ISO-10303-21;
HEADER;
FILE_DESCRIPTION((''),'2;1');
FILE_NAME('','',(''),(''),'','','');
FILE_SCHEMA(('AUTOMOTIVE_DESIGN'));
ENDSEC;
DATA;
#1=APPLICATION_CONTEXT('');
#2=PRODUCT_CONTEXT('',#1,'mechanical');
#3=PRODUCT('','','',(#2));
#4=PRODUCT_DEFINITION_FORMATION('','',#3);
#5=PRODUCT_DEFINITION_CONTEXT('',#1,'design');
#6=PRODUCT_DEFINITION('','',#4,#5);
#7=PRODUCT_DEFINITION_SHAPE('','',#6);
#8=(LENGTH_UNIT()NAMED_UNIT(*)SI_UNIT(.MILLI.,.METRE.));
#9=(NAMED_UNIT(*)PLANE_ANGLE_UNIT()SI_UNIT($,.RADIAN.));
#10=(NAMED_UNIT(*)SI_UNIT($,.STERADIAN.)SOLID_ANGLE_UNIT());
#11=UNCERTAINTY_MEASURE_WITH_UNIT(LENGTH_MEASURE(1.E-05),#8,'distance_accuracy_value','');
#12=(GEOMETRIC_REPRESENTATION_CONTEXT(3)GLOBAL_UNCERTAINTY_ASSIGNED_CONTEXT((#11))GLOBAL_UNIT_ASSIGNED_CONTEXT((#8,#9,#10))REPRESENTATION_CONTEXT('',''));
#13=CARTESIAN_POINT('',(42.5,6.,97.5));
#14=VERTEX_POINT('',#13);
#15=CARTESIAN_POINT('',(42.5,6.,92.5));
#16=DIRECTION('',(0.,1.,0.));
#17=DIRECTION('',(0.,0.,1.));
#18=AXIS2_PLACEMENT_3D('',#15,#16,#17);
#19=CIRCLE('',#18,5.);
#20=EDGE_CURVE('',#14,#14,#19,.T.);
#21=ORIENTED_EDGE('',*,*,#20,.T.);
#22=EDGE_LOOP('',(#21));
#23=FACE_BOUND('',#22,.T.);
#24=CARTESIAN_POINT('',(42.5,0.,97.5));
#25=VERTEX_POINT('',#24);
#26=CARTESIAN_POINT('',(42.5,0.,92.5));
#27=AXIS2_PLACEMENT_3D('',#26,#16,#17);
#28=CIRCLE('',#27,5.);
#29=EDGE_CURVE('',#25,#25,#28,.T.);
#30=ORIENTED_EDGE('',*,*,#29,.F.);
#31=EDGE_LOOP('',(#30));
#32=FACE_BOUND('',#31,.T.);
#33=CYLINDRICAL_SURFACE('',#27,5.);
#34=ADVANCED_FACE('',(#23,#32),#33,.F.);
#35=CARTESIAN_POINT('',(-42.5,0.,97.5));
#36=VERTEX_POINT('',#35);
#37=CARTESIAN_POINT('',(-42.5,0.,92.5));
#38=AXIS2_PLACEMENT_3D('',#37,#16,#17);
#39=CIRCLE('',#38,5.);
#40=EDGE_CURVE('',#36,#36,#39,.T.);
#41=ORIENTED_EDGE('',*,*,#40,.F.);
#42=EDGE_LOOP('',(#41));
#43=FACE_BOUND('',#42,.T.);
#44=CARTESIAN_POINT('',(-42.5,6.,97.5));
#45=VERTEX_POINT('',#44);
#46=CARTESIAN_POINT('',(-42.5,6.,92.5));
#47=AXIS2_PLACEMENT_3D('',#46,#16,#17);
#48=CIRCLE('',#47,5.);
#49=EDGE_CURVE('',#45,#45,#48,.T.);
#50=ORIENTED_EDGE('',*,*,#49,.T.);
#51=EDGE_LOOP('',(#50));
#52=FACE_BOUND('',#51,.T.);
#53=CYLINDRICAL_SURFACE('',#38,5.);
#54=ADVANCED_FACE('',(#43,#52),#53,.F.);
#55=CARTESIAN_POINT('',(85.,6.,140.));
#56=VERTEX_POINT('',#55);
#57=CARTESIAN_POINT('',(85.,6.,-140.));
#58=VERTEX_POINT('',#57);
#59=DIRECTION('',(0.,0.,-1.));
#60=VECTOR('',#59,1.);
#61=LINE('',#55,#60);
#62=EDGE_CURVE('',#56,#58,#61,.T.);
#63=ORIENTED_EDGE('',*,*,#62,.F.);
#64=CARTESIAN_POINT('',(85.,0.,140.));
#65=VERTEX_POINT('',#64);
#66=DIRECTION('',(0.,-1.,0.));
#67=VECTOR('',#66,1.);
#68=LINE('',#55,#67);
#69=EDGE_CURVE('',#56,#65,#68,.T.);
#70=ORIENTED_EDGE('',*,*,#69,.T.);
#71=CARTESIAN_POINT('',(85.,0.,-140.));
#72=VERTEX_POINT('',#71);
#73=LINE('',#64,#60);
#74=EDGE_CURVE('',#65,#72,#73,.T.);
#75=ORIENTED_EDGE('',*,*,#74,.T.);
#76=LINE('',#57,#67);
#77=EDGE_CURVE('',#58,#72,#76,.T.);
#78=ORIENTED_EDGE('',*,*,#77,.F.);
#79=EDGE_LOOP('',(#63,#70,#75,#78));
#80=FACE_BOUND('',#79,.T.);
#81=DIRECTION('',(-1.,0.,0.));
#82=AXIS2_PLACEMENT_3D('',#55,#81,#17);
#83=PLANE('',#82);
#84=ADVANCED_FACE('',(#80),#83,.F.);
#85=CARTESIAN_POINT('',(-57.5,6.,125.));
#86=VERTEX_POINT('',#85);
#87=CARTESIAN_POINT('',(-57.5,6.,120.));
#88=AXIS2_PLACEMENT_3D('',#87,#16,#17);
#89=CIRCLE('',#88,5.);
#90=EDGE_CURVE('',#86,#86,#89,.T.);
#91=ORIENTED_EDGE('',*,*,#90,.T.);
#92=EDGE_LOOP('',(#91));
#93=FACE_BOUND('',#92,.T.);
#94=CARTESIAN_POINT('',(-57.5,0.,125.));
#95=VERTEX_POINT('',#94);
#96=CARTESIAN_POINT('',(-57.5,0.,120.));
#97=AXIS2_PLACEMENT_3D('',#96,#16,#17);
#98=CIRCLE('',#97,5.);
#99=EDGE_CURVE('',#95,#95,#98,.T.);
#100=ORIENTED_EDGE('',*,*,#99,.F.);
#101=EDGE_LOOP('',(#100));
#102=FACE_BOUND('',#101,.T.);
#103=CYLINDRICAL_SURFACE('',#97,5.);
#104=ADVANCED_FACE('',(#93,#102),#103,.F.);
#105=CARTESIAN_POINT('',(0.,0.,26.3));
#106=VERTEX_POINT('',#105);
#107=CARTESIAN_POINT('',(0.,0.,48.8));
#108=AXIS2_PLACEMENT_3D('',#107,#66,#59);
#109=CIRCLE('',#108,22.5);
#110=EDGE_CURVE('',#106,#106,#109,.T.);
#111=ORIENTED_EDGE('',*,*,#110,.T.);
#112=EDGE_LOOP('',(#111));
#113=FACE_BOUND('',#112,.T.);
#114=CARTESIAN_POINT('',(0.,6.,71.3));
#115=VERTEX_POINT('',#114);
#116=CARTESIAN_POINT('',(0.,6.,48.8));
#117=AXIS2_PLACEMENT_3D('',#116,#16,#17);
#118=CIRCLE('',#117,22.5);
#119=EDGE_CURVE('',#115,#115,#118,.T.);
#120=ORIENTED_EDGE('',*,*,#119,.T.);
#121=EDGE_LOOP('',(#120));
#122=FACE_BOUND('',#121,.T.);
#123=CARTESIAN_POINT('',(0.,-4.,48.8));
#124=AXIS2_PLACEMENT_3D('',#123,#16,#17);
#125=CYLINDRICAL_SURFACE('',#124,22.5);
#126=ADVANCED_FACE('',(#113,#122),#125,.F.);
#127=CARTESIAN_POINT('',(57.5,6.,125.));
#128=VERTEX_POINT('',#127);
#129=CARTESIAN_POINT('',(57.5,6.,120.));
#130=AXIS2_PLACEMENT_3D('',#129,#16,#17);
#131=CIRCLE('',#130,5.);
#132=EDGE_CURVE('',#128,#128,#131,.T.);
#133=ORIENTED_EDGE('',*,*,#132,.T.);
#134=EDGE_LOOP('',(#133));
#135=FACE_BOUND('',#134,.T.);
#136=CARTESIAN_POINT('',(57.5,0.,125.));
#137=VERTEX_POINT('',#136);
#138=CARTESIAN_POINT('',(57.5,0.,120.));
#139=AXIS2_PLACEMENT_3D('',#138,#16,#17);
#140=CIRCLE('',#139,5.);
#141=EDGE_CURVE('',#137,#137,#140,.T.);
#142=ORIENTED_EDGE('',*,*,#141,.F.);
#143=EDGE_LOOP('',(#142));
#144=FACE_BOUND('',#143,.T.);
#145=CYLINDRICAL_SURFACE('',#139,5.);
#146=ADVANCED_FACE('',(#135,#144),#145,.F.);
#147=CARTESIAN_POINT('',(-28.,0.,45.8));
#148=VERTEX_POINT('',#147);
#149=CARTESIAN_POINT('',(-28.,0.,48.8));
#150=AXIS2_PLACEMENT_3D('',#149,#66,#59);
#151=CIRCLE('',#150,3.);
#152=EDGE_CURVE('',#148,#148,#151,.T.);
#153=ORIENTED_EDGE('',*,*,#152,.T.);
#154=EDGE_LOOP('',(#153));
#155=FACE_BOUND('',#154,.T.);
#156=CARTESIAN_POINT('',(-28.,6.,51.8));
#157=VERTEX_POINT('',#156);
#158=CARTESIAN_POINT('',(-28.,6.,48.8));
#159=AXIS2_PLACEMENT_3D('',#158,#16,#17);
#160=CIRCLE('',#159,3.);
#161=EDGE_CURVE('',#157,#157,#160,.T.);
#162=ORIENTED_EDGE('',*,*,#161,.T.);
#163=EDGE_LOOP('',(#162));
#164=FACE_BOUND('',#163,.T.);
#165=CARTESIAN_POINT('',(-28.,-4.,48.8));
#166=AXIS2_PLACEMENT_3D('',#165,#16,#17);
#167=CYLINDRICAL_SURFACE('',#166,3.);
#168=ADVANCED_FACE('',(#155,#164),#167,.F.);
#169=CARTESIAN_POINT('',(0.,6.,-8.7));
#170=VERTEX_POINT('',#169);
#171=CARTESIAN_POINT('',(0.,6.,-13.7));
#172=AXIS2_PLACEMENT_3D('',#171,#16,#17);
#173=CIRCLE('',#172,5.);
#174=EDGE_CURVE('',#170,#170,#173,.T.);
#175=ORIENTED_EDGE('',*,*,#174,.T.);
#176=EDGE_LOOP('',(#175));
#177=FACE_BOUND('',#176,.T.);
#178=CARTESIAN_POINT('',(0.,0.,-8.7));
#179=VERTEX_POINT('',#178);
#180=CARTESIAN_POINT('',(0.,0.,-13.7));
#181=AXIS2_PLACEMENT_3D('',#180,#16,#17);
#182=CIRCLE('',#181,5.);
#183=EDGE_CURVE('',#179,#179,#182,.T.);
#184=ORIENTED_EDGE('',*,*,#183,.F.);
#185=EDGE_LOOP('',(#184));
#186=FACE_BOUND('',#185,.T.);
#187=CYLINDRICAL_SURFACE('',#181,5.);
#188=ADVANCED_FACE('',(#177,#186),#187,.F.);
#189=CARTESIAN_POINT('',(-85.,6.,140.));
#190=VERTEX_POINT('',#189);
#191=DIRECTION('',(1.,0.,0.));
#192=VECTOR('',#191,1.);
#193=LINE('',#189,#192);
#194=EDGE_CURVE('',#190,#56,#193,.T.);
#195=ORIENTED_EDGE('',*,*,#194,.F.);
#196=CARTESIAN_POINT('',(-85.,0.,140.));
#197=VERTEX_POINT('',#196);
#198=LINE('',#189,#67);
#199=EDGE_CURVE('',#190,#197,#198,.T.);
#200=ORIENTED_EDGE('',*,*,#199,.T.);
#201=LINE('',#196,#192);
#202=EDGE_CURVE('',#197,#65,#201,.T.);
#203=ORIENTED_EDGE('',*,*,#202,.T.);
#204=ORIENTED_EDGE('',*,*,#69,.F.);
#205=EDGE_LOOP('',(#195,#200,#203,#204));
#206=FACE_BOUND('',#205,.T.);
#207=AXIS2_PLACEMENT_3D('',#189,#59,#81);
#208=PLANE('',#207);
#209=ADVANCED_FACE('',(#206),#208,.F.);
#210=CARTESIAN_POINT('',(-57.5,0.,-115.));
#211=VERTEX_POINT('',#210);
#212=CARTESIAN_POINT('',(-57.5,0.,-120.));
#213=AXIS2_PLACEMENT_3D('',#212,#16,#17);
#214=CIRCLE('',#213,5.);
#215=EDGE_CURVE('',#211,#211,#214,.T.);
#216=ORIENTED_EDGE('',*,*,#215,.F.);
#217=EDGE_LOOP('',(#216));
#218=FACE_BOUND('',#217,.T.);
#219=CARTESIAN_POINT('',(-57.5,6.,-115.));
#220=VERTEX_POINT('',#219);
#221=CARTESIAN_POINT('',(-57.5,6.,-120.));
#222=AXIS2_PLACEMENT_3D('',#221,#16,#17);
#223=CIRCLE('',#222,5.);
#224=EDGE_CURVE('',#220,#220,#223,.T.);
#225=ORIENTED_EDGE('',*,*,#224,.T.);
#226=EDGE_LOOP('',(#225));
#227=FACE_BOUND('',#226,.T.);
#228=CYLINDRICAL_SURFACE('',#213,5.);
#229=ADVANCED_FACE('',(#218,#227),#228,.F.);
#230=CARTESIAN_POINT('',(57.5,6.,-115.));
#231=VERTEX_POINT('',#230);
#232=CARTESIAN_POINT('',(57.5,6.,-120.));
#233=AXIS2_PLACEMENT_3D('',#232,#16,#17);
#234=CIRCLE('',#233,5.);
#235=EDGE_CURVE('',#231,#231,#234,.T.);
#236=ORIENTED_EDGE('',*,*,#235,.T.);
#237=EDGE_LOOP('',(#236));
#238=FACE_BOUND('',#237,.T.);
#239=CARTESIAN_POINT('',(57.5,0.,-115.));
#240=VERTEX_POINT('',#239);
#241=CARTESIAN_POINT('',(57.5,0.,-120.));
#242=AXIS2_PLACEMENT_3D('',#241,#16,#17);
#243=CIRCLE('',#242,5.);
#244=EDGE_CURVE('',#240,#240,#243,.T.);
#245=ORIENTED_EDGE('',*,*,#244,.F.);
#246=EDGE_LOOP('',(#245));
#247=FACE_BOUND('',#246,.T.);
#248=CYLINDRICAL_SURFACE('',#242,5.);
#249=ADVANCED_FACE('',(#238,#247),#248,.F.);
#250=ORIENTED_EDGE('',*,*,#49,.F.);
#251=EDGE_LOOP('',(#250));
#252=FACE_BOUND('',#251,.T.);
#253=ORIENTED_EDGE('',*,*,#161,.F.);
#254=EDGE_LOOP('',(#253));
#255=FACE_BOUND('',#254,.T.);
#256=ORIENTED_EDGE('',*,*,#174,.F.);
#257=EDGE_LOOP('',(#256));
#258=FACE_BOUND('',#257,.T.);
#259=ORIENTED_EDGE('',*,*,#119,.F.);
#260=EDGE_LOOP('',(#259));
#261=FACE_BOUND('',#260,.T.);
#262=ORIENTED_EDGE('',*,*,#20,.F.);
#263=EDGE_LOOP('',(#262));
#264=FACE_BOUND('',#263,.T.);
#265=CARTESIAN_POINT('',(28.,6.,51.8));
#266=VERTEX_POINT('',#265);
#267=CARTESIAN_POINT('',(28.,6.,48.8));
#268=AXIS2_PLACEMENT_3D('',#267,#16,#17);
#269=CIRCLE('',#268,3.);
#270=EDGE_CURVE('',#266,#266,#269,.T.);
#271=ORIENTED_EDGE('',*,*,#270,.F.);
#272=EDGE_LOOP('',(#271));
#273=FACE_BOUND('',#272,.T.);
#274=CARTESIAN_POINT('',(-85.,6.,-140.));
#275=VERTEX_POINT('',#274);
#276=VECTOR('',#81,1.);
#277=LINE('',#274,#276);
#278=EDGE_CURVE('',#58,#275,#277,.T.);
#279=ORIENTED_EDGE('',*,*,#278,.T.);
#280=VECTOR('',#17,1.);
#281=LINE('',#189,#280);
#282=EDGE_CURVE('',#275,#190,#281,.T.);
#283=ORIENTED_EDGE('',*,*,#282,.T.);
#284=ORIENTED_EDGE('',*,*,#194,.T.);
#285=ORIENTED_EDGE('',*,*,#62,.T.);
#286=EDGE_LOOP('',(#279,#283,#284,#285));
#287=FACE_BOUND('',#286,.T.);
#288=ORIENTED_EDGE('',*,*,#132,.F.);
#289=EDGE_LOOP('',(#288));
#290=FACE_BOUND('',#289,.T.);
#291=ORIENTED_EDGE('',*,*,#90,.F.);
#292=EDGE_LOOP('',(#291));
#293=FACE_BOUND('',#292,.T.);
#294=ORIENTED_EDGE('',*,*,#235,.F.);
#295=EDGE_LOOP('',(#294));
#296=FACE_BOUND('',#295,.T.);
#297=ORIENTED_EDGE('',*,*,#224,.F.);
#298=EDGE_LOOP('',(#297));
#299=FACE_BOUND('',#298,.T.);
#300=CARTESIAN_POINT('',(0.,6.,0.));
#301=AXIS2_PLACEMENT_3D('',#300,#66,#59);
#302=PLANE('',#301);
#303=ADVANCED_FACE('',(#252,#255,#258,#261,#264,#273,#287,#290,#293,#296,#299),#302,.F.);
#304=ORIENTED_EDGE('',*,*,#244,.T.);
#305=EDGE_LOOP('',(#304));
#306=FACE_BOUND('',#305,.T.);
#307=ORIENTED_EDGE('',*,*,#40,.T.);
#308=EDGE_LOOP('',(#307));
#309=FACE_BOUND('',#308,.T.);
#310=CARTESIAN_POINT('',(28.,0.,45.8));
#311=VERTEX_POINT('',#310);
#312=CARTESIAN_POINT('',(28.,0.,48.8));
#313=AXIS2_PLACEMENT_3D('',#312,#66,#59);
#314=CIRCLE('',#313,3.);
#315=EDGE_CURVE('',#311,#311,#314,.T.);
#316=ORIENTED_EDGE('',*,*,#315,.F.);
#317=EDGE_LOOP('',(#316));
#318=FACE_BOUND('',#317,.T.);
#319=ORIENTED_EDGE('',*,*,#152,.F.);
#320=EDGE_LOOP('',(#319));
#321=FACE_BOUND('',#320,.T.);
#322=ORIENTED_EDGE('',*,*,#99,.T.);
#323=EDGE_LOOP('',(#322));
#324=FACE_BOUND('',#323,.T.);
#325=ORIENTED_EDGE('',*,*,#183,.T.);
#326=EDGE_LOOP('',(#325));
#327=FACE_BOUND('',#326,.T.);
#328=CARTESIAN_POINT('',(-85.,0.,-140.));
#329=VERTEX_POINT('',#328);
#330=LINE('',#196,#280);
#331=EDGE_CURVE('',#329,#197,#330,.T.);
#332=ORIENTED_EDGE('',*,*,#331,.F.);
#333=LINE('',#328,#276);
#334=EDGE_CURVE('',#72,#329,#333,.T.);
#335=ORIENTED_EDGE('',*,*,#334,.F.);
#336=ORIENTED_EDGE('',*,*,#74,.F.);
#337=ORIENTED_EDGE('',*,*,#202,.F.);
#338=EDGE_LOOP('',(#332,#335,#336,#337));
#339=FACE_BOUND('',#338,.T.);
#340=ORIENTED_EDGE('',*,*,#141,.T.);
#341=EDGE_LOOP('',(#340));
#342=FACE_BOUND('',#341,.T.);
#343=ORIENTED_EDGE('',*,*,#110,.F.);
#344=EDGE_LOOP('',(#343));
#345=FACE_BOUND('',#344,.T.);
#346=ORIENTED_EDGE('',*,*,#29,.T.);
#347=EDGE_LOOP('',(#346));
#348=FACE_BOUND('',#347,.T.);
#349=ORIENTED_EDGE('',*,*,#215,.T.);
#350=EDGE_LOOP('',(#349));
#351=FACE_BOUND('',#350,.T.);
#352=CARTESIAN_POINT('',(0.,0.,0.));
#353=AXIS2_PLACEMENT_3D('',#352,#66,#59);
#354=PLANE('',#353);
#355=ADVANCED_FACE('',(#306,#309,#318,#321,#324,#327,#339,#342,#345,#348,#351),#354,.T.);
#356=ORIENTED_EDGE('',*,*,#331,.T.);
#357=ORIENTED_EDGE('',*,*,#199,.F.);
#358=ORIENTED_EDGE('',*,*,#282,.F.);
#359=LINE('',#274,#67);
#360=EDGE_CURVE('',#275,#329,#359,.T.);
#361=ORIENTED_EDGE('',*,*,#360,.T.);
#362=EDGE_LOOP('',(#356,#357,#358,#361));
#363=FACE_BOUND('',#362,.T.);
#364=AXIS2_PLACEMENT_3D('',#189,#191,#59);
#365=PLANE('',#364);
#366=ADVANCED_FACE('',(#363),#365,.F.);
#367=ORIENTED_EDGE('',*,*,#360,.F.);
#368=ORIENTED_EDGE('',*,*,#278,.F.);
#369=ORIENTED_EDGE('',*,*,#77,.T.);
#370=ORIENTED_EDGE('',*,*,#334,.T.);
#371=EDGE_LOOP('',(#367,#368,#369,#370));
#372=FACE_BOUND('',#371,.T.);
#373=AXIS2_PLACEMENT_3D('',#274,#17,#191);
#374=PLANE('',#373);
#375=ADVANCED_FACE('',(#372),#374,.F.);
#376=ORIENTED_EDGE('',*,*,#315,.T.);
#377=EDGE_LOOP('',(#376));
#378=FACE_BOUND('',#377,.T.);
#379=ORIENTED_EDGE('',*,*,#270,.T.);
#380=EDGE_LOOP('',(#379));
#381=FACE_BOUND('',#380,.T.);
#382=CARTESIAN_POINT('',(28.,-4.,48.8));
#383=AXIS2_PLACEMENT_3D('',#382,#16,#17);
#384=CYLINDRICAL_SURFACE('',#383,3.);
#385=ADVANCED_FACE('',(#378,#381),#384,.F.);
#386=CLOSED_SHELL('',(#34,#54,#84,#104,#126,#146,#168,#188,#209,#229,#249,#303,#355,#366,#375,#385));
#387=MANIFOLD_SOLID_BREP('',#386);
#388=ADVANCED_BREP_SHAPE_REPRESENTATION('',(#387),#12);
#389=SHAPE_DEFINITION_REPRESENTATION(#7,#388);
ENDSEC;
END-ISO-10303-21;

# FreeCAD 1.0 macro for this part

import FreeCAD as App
import Part
import Sketcher

V = App.Vector

doc = App.newDocument("Part")
body = doc.addObject("PartDesign::Body", "Body")

# Sketch on XZ plane
sketch1 = body.newObject("Sketcher::SketchObject", "Sketch")
sketch1.AttachmentSupport = (doc.getObject("XZ_Plane"), [""])
sketch1.MapMode = "FlatFace"
sketch1.addGeometry([
    Part.LineSegment(V(-85, -140, 0), V(-85, 140, 0)),
    Part.LineSegment(V(-85, 140, 0), V(85, 140, 0)),
    Part.LineSegment(V(85, 140, 0), V(85, -140, 0)),
    Part.LineSegment(V(85, -140, 0), V(-85, -140, 0)),
], False)
sketch1.addConstraint([
    Sketcher.Constraint("Coincident", 0, 2, 1, 1),
    Sketcher.Constraint("Coincident", 1, 2, 2, 1),
    Sketcher.Constraint("Coincident", 2, 2, 3, 1),
    Sketcher.Constraint("Coincident", 3, 2, 0, 1),
    Sketcher.Constraint("Vertical", 0),
    Sketcher.Constraint("Horizontal", 1),
    Sketcher.Constraint("Vertical", 2),
    Sketcher.Constraint("Horizontal", 3),
    Sketcher.Constraint("Symmetric", 0, 2, 2, 2, -1, 1),
    Sketcher.Constraint("DistanceX", 1, 1, 1, 2, 170.0),
    Sketcher.Constraint("DistanceY", 0, 1, 0, 2, 280.0),
])
pad1 = body.newObject("PartDesign::Pad", "Pad")
pad1.Profile = sketch1
pad1.Length = 6
pad1.Reversed = True

# Sketch on XZ plane
sketch2 = body.newObject("Sketcher::SketchObject", "Sketch001")
sketch2.AttachmentSupport = (doc.getObject("XZ_Plane"), [""])
sketch2.MapMode = "FlatFace"
sketch2.AttachmentOffset = App.Placement(V(0, 0, -6), App.Rotation())
sketch2.addGeometry([
    Part.Circle(V(-57.5, -120, 0), V(0, 0, 1), 5),  # 0
    Part.Circle(V(57.5, -120, 0), V(0, 0, 1), 5),  # 1
    Part.Circle(V(0, -13.7, 0), V(0, 0, 1), 5),  # 2
    Part.Circle(V(-57.5, 120, 0), V(0, 0, 1), 5),  # 3
    Part.Circle(V(57.5, 120, 0), V(0, 0, 1), 5),  # 4
    Part.Circle(V(-42.5, 92.5, 0), V(0, 0, 1), 5),  # 5
    Part.Circle(V(42.5, 92.5, 0), V(0, 0, 1), 5),  # 6
], False)
sketch2.addConstraint([
    Sketcher.Constraint("Equal", 0, 1),
    Sketcher.Constraint("Equal", 1, 2),
    Sketcher.Constraint("Equal", 2, 3),
    Sketcher.Constraint("Equal", 3, 4),
    Sketcher.Constraint("Equal", 4, 5),
    Sketcher.Constraint("Equal", 5, 6),
    Sketcher.Constraint("Symmetric", 1, 3, 3, 3, -1, 1),
    Sketcher.Constraint("Symmetric", 0, 3, 4, 3, -1, 1),
    Sketcher.Constraint("Symmetric", 0, 3, 1, 3, -2),
    Sketcher.Constraint("Symmetric", 5, 3, 6, 3, -2),
    Sketcher.Constraint("PointOnObject", 2, 3, -2),
    Sketcher.Constraint("Diameter", 0, 10.0),
    Sketcher.Constraint("DistanceY", 0, 3, -1, 1, 120.0),
    Sketcher.Constraint("DistanceX", 0, 3, 1, 3, 115.0),
    Sketcher.Constraint("DistanceX", 3, 3, 5, 3, 15.0),
    Sketcher.Constraint("DistanceY", 2, 3, -1, 1, 13.7),
    Sketcher.Constraint("DistanceY", -1, 1, 5, 3, 92.5),
])
pocket1 = body.newObject("PartDesign::Pocket", "Pocket")
pocket1.Profile = sketch2
pocket1.Length = 6
pocket1.Reversed = True

# Sketch on XZ plane
sketch3 = body.newObject("Sketcher::SketchObject", "Sketch002")
sketch3.AttachmentSupport = (doc.getObject("XZ_Plane"), [""])
sketch3.MapMode = "FlatFace"
sketch3.AttachmentOffset = App.Placement(V(0, 0, -6), App.Rotation())
sketch3.addGeometry([
    Part.Circle(V(0, 48.8, 0), V(0, 0, 1), 22.5),
    Part.Circle(V(28, 48.8, 0), V(0, 0, 1), 3),
    Part.Circle(V(-28, 48.8, 0), V(0, 0, 1), 3),
], False)
sketch3.addConstraint([
    Sketcher.Constraint("Equal", 1, 2),
    Sketcher.Constraint("Symmetric", 1, 3, 2, 3, -2),
    Sketcher.Constraint("PointOnObject", 0, 3, -2),
    Sketcher.Constraint("Horizontal", 0, 3, 1, 3),
    Sketcher.Constraint("Diameter", 0, 45.0),
    Sketcher.Constraint("Diameter", 1, 6.0),
    Sketcher.Constraint("DistanceX", -1, 1, 1, 3, 28.0),
    Sketcher.Constraint("DistanceY", -1, 1, 0, 3, 48.8),
])
pocket2 = body.newObject("PartDesign::Pocket", "Pocket001")
pocket2.Profile = sketch3
pocket2.Length = 10
pocket2.Reversed = True

doc.recompute()
